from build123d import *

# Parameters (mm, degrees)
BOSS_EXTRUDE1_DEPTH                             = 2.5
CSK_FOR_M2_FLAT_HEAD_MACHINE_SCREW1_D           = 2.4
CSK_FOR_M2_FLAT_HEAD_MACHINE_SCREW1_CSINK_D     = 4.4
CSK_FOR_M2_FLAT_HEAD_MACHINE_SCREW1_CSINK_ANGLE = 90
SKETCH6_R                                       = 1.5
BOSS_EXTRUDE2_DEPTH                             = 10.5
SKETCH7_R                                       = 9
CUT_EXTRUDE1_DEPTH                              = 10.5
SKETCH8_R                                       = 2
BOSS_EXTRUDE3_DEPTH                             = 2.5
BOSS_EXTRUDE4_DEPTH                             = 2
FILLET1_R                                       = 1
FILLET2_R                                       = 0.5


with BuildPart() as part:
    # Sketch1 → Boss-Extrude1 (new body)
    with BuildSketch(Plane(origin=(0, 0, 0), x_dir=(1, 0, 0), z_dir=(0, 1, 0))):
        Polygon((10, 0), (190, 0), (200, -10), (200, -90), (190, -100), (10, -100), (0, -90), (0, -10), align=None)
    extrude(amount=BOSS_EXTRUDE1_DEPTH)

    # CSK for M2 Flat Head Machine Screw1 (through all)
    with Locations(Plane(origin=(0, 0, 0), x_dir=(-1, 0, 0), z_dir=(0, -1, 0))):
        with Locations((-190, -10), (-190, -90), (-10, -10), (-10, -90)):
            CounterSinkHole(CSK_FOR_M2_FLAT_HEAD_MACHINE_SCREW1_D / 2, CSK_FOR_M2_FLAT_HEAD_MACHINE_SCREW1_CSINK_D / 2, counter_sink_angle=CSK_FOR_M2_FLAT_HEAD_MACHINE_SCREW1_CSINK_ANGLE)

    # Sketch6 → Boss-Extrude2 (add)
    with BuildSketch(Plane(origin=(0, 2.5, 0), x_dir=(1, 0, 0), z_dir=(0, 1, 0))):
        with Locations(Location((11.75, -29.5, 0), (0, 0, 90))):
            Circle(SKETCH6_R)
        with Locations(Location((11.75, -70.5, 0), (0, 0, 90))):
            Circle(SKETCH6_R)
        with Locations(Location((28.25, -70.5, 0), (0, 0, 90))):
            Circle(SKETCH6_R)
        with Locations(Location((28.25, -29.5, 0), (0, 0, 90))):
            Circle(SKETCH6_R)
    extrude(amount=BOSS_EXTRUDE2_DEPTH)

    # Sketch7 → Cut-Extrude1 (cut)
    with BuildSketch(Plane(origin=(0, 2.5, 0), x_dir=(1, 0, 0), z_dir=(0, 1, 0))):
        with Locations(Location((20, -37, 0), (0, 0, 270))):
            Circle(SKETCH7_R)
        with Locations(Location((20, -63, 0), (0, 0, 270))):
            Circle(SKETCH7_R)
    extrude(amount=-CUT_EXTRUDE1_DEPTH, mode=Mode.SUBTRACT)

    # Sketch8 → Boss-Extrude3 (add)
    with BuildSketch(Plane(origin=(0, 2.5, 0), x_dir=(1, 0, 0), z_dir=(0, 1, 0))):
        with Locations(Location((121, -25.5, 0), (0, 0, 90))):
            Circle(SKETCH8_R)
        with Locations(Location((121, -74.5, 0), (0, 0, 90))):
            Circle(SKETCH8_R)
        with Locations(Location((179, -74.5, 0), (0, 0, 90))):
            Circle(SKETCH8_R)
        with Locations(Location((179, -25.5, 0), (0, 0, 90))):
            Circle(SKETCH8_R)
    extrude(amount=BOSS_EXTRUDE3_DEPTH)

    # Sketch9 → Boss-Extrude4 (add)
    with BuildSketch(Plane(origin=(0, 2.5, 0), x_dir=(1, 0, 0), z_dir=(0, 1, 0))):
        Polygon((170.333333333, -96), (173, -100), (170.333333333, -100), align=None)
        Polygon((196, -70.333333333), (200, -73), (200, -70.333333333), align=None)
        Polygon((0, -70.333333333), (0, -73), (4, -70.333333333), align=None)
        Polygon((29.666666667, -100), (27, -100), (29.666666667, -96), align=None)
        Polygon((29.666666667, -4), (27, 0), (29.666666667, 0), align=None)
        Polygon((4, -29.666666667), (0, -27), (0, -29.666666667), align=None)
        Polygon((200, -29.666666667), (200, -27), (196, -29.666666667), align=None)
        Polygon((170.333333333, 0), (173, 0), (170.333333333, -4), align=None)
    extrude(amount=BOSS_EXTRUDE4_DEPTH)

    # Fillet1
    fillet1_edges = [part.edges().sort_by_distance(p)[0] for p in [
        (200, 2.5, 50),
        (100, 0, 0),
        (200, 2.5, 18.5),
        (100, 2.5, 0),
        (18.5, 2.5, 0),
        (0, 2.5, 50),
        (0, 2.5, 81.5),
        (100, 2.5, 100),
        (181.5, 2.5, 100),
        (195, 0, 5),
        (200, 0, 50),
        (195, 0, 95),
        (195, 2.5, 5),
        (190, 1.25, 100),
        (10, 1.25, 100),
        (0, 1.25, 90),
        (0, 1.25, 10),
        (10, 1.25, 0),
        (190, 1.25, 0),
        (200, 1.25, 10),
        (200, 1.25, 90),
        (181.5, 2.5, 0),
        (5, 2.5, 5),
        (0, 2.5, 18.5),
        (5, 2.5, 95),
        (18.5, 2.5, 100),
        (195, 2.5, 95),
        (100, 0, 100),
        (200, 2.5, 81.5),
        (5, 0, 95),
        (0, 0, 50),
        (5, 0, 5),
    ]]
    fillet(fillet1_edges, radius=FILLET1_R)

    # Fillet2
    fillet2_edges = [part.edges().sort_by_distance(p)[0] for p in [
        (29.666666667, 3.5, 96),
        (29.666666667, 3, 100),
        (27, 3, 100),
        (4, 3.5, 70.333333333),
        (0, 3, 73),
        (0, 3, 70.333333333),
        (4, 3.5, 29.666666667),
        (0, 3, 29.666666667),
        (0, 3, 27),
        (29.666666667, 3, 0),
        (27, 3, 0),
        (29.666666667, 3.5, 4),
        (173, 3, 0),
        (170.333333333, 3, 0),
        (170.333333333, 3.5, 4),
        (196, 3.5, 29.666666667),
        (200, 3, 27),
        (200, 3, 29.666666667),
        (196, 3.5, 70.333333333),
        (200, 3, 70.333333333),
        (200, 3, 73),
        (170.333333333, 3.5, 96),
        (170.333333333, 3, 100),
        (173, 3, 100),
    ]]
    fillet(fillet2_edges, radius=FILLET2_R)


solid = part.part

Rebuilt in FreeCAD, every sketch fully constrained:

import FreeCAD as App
import Part
import Sketcher

V = App.Vector


def edges_at(feature, points):
    """Names of the edges that pass closest to the given points."""
    edges = feature.Shape.Edges
    near = lambda p: min(range(len(edges)), key=lambda i: edges[i].distToShape(Part.Vertex(*p))[0])
    return sorted({f"Edge{near(p) + 1}" for p in points})


def add_polygon(sketch, points):
    """Adds a closed chain of lines whose ends are joined by coincident constraints."""
    first, n = sketch.GeometryCount, len(points)
    for a, b in zip(points, points[1:] + points[:1]):
        sketch.addGeometry(Part.LineSegment(App.Vector(*a, 0), App.Vector(*b, 0)), False)
    for i in range(n):
        sketch.addConstraint(Sketcher.Constraint("Coincident", first + i, 2, first + (i + 1) % n, 1))

doc = App.newDocument("Part")
body = doc.addObject("PartDesign::Body", "Body")

# Sketch on XZ plane
sketch1 = body.newObject("Sketcher::SketchObject", "Sketch")
sketch1.AttachmentSupport = (doc.getObject("XZ_Plane"), [""])
sketch1.MapMode = "FlatFace"
add_polygon(sketch1, [(190, 0), (10, 0), (0, 10), (0, 90), (10, 100), (190, 100), (200, 90), (200, 10)])  # lines 0-7
sketch1.addConstraint(Sketcher.Constraint("Horizontal", 0))
sketch1.addConstraint(Sketcher.Constraint("Vertical", 2))
sketch1.addConstraint(Sketcher.Constraint("Horizontal", 4))
sketch1.addConstraint(Sketcher.Constraint("Vertical", 6))
sketch1.addConstraint(Sketcher.Constraint("PointOnObject", 0, 2, -1))
sketch1.addConstraint(Sketcher.Constraint("PointOnObject", 1, 2, -2))
sketch1.addConstraint(Sketcher.Constraint("Perpendicular", 1, 3))
sketch1.addConstraint(Sketcher.Constraint("Perpendicular", 3, 5))
sketch1.addConstraint(Sketcher.Constraint("Perpendicular", 5, 7))
sketch1.addConstraint(Sketcher.Constraint("Horizontal", 2, 2, 5, 2))
sketch1.addConstraint(Sketcher.Constraint("Horizontal", 1, 2, 6, 2))
sketch1.addConstraint(Sketcher.Constraint("Vertical", 0, 2, 3, 2))
sketch1.addConstraint(Sketcher.Constraint("Vertical", 4, 2, 7, 2))
sketch1.addConstraint(Sketcher.Constraint("DistanceX", 0, 2, 0, 1, 180.0))
sketch1.addConstraint(Sketcher.Constraint("DistanceY", 2, 1, 2, 2, 80.0))
sketch1.addConstraint(Sketcher.Constraint("DistanceX", -1, 1, 0, 2, 10.0))
pad1 = body.newObject("PartDesign::Pad", "Pad")
pad1.Profile = sketch1
pad1.Length = 2.5
pad1.Reversed = True

# Sketch on XZ plane
sketch2 = body.newObject("Sketcher::SketchObject", "Sketch001")
sketch2.AttachmentSupport = (doc.getObject("XZ_Plane"), [""])
sketch2.MapMode = "FlatFace"
sketch2.addGeometry(Part.Circle(V(190, 10, 0), V(0, 0, 1), 1.2), False)
sketch2.addGeometry(Part.Circle(V(190, 90, 0), V(0, 0, 1), 1.2), False)
sketch2.addGeometry(Part.Circle(V(10, 10, 0), V(0, 0, 1), 1.2), False)
sketch2.addGeometry(Part.Circle(V(10, 90, 0), V(0, 0, 1), 1.2), False)
sketch2.addConstraint(Sketcher.Constraint("Equal", 0, 1))
sketch2.addConstraint(Sketcher.Constraint("Equal", 1, 2))
sketch2.addConstraint(Sketcher.Constraint("Equal", 2, 3))
sketch2.addConstraint(Sketcher.Constraint("Horizontal", 0, 3, 2, 3))
sketch2.addConstraint(Sketcher.Constraint("Horizontal", 1, 3, 3, 3))
sketch2.addConstraint(Sketcher.Constraint("Vertical", 0, 3, 1, 3))
sketch2.addConstraint(Sketcher.Constraint("Vertical", 2, 3, 3, 3))
sketch2.addConstraint(Sketcher.Constraint("Diameter", 0, 2.4))
sketch2.addConstraint(Sketcher.Constraint("DistanceX", -1, 1, 0, 3, 190.0))
sketch2.addConstraint(Sketcher.Constraint("DistanceY", -1, 1, 0, 3, 10.0))
sketch2.addConstraint(Sketcher.Constraint("DistanceY", -1, 1, 1, 3, 90.0))
sketch2.addConstraint(Sketcher.Constraint("DistanceX", -1, 1, 2, 3, 10.0))
doc.recompute()
hole = body.newObject("PartDesign::Hole", "Hole")
hole.Profile = sketch2
hole.ThreadType = "None"
hole.Diameter = 2.4
hole.DepthType = "ThroughAll"
hole.HoleCutType = "Countersink"
hole.HoleCutDiameter = 4.4
hole.HoleCutCountersinkAngle = 90

# Sketch on XZ plane
sketch3 = body.newObject("Sketcher::SketchObject", "Sketch002")
sketch3.AttachmentSupport = (doc.getObject("XZ_Plane"), [""])
sketch3.MapMode = "FlatFace"
sketch3.AttachmentOffset = App.Placement(V(0, 0, -2.5), App.Rotation())
sketch3.addGeometry(Part.Circle(V(11.75, 29.5, 0), V(0, 0, 1), 1.5), False)
sketch3.addGeometry(Part.Circle(V(11.75, 70.5, 0), V(0, 0, 1), 1.5), False)
sketch3.addGeometry(Part.Circle(V(28.25, 70.5, 0), V(0, 0, 1), 1.5), False)
sketch3.addGeometry(Part.Circle(V(28.25, 29.5, 0), V(0, 0, 1), 1.5), False)
sketch3.addConstraint(Sketcher.Constraint("Equal", 0, 1))
sketch3.addConstraint(Sketcher.Constraint("Equal", 1, 2))
sketch3.addConstraint(Sketcher.Constraint("Equal", 2, 3))
sketch3.addConstraint(Sketcher.Constraint("Horizontal", 1, 3, 2, 3))
sketch3.addConstraint(Sketcher.Constraint("Horizontal", 0, 3, 3, 3))
sketch3.addConstraint(Sketcher.Constraint("Vertical", 0, 3, 1, 3))
sketch3.addConstraint(Sketcher.Constraint("Vertical", 2, 3, 3, 3))
sketch3.addConstraint(Sketcher.Constraint("Diameter", 0, 3.0))
sketch3.addConstraint(Sketcher.Constraint("DistanceY", 0, 3, 1, 3, 41.0))
sketch3.addConstraint(Sketcher.Constraint("DistanceY", -1, 1, 0, 3, 29.5))
sketch3.addConstraint(Sketcher.Constraint("DistanceX", 1, 3, 2, 3, 16.5))
sketch3.addConstraint(Sketcher.Constraint("DistanceX", -1, 1, 0, 3, 11.75))
pad2 = body.newObject("PartDesign::Pad", "Pad001")
pad2.Profile = sketch3
pad2.Length = 10.5
pad2.Reversed = True

# Sketch on XZ plane
sketch4 = body.newObject("Sketcher::SketchObject", "Sketch003")
sketch4.AttachmentSupport = (doc.getObject("XZ_Plane"), [""])
sketch4.MapMode = "FlatFace"
sketch4.AttachmentOffset = App.Placement(V(0, 0, -2.5), App.Rotation())
sketch4.addGeometry(Part.Circle(V(20, 37, 0), V(0, 0, 1), 9), False)
sketch4.addGeometry(Part.Circle(V(20, 63, 0), V(0, 0, 1), 9), False)
sketch4.addConstraint(Sketcher.Constraint("Equal", 0, 1))
sketch4.addConstraint(Sketcher.Constraint("Vertical", 0, 3, 1, 3))
sketch4.addConstraint(Sketcher.Constraint("Diameter", 0, 18.0))
sketch4.addConstraint(Sketcher.Constraint("DistanceX", -1, 1, 0, 3, 20.0))
sketch4.addConstraint(Sketcher.Constraint("DistanceY", -1, 1, 0, 3, 37.0))
sketch4.addConstraint(Sketcher.Constraint("DistanceY", -1, 1, 1, 3, 63.0))
pocket1 = body.newObject("PartDesign::Pocket", "Pocket")
pocket1.Profile = sketch4
pocket1.Length = 10.5
pocket1.Reversed = True

# Sketch on XZ plane
sketch5 = body.newObject("Sketcher::SketchObject", "Sketch004")
sketch5.AttachmentSupport = (doc.getObject("XZ_Plane"), [""])
sketch5.MapMode = "FlatFace"
sketch5.AttachmentOffset = App.Placement(V(0, 0, -2.5), App.Rotation())
sketch5.addGeometry(Part.Circle(V(121, 25.5, 0), V(0, 0, 1), 2), False)
sketch5.addGeometry(Part.Circle(V(121, 74.5, 0), V(0, 0, 1), 2), False)
sketch5.addGeometry(Part.Circle(V(179, 74.5, 0), V(0, 0, 1), 2), False)
sketch5.addGeometry(Part.Circle(V(179, 25.5, 0), V(0, 0, 1), 2), False)
sketch5.addConstraint(Sketcher.Constraint("Equal", 0, 1))
sketch5.addConstraint(Sketcher.Constraint("Equal", 1, 2))
sketch5.addConstraint(Sketcher.Constraint("Equal", 2, 3))
sketch5.addConstraint(Sketcher.Constraint("Horizontal", 1, 3, 2, 3))
sketch5.addConstraint(Sketcher.Constraint("Horizontal", 0, 3, 3, 3))
sketch5.addConstraint(Sketcher.Constraint("Vertical", 0, 3, 1, 3))
sketch5.addConstraint(Sketcher.Constraint("Vertical", 2, 3, 3, 3))
sketch5.addConstraint(Sketcher.Constraint("Diameter", 0, 4.0))
sketch5.addConstraint(Sketcher.Constraint("DistanceX", -1, 1, 0, 3, 121.0))
sketch5.addConstraint(Sketcher.Constraint("DistanceX", -1, 1, 2, 3, 179.0))
sketch5.addConstraint(Sketcher.Constraint("DistanceY", 0, 3, 1, 3, 49.0))
sketch5.addConstraint(Sketcher.Constraint("DistanceY", -1, 1, 0, 3, 25.5))
pad3 = body.newObject("PartDesign::Pad", "Pad002")
pad3.Profile = sketch5
pad3.Length = 2.5
pad3.Reversed = True

# Sketch on XZ plane
sketch6 = body.newObject("Sketcher::SketchObject", "Sketch005")
sketch6.AttachmentSupport = (doc.getObject("XZ_Plane"), [""])
sketch6.MapMode = "FlatFace"
sketch6.AttachmentOffset = App.Placement(V(0, 0, -2.5), App.Rotation())
add_polygon(sketch6, [(173, 100), (170.333333, 96), (170.333333, 100)])  # lines 0-2
add_polygon(sketch6, [(196, 70.333333), (200, 73), (200, 70.333333)])  # lines 3-5
add_polygon(sketch6, [(0, 70.333333), (0, 73), (4, 70.333333)])  # lines 6-8
add_polygon(sketch6, [(27, 100), (29.666667, 100), (29.666667, 96)])  # lines 9-11
add_polygon(sketch6, [(27, 0), (29.666667, 4), (29.666667, 0)])  # lines 12-14
add_polygon(sketch6, [(4, 29.666667), (0, 27), (0, 29.666667)])  # lines 15-17
add_polygon(sketch6, [(200, 29.666667), (200, 27), (196, 29.666667)])  # lines 18-20
add_polygon(sketch6, [(173, 0), (170.333333, 0), (170.333333, 4)])  # lines 21-23
sketch6.addConstraint(Sketcher.Constraint("Vertical", 1))
sketch6.addConstraint(Sketcher.Constraint("Horizontal", 2))
sketch6.addConstraint(Sketcher.Constraint("Vertical", 4))
sketch6.addConstraint(Sketcher.Constraint("Horizontal", 5))
sketch6.addConstraint(Sketcher.Constraint("Vertical", 6))
sketch6.addConstraint(Sketcher.Constraint("Horizontal", 8))
sketch6.addConstraint(Sketcher.Constraint("Horizontal", 9))
sketch6.addConstraint(Sketcher.Constraint("Vertical", 10))
sketch6.addConstraint(Sketcher.Constraint("Vertical", 13))
sketch6.addConstraint(Sketcher.Constraint("Horizontal", 14))
sketch6.addConstraint(Sketcher.Constraint("Vertical", 16))
sketch6.addConstraint(Sketcher.Constraint("Horizontal", 17))
sketch6.addConstraint(Sketcher.Constraint("Vertical", 18))
sketch6.addConstraint(Sketcher.Constraint("Horizontal", 20))
sketch6.addConstraint(Sketcher.Constraint("Horizontal", 21))
sketch6.addConstraint(Sketcher.Constraint("Vertical", 22))
sketch6.addConstraint(Sketcher.Constraint("PointOnObject", 6, 2, -2))
sketch6.addConstraint(Sketcher.Constraint("PointOnObject", 13, 2, -1))
sketch6.addConstraint(Sketcher.Constraint("PointOnObject", 15, 2, -2))
sketch6.addConstraint(Sketcher.Constraint("PointOnObject", 21, 2, -1))
sketch6.addConstraint(Sketcher.Constraint("Perpendicular", 0, 7))
sketch6.addConstraint(Sketcher.Constraint("Perpendicular", 3, 11))
sketch6.addConstraint(Sketcher.Constraint("Perpendicular", 7, 12))
sketch6.addConstraint(Sketcher.Constraint("Perpendicular", 11, 15))
sketch6.addConstraint(Sketcher.Constraint("Perpendicular", 12, 19))
sketch6.addConstraint(Sketcher.Constraint("Perpendicular", 15, 23))
sketch6.addConstraint(Sketcher.Constraint("Horizontal", 3, 2, 6, 2))
sketch6.addConstraint(Sketcher.Constraint("Horizontal", 5, 2, 7, 2))
sketch6.addConstraint(Sketcher.Constraint("Horizontal", 2, 2, 9, 2))
sketch6.addConstraint(Sketcher.Constraint("Horizontal", 0, 2, 10, 2))
sketch6.addConstraint(Sketcher.Constraint("Horizontal", 15, 2, 18, 2))
sketch6.addConstraint(Sketcher.Constraint("Horizontal", 17, 2, 19, 2))
sketch6.addConstraint(Sketcher.Constraint("Horizontal", 12, 2, 22, 2))
sketch6.addConstraint(Sketcher.Constraint("Vertical", 10, 2, 12, 2))
sketch6.addConstraint(Sketcher.Constraint("Vertical", 11, 2, 14, 2))
sketch6.addConstraint(Sketcher.Constraint("Vertical", 7, 2, 17, 2))
sketch6.addConstraint(Sketcher.Constraint("Vertical", 4, 2, 18, 2))
sketch6.addConstraint(Sketcher.Constraint("Vertical", 5, 2, 19, 2))
sketch6.addConstraint(Sketcher.Constraint("Vertical", 1, 2, 21, 2))
sketch6.addConstraint(Sketcher.Constraint("Equal", 20, 1))
sketch6.addConstraint(Sketcher.Constraint("DistanceX", 5, 2, 5, 1, 4.0))
sketch6.addConstraint(Sketcher.Constraint("DistanceY", -1, 1, 0, 2, 96.0))
sketch6.addConstraint(Sketcher.Constraint("DistanceX", -1, 1, 2, 2, 173.0))
sketch6.addConstraint(Sketcher.Constraint("DistanceX", -1, 1, 3, 2, 200.0))
sketch6.addConstraint(Sketcher.Constraint("DistanceY", -1, 1, 3, 2, 73.0))
sketch6.addConstraint(Sketcher.Constraint("DistanceX", -1, 1, 11, 2, 27.0))
sketch6.addConstraint(Sketcher.Constraint("DistanceY", -1, 1, 15, 2, 27.0))
sketch6.addConstraint(Sketcher.Constraint("Distance", 0, 4.807402))
pad4 = body.newObject("PartDesign::Pad", "Pad003")
pad4.Profile = sketch6
pad4.Length = 2
pad4.Reversed = True
doc.recompute()

fillet = body.newObject("PartDesign::Fillet", "Fillet")
fillet.Base = (pad4, edges_at(pad4, [
    (200, 2.5, 50),
    (100, 0, 0),
    (200, 2.5, 18.5),
    (100, 2.5, 0),
    (18.5, 2.5, 0),
    (0, 2.5, 50),
    (0, 2.5, 81.5),
    (100, 2.5, 100),
    (181.5, 2.5, 100),
    (195, 0, 5),
    (200, 0, 50),
    (195, 0, 95),
    (195, 2.5, 5),
    (190, 1.25, 100),
    (10, 1.25, 100),
    (0, 1.25, 90),
    (0, 1.25, 10),
    (10, 1.25, 0),
    (190, 1.25, 0),
    (200, 1.25, 10),
    (200, 1.25, 90),
    (181.5, 2.5, 0),
    (5, 2.5, 5),
    (0, 2.5, 18.5),
    (5, 2.5, 95),
    (18.5, 2.5, 100),
    (195, 2.5, 95),
    (100, 0, 100),
    (200, 2.5, 81.5),
    (5, 0, 95),
    (0, 0, 50),
    (5, 0, 5),
]))
fillet.Radius = 1
doc.recompute()

fillet2 = body.newObject("PartDesign::Fillet", "Fillet001")
fillet2.Base = (fillet, edges_at(fillet, [
    (29.667, 3.5, 96),
    (29.667, 3, 100),
    (27, 3, 100),
    (4, 3.5, 70.333),
    (0, 3, 73),
    (0, 3, 70.333),
    (4, 3.5, 29.667),
    (0, 3, 29.667),
    (0, 3, 27),
    (29.667, 3, 0),
    (27, 3, 0),
    (29.667, 3.5, 4),
    (173, 3, 0),
    (170.333, 3, 0),
    (170.333, 3.5, 4),
    (196, 3.5, 29.667),
    (200, 3, 27),
    (200, 3, 29.667),
    (196, 3.5, 70.333),
    (200, 3, 70.333),
    (200, 3, 73),
    (170.333, 3.5, 96),
    (170.333, 3, 100),
    (173, 3, 100),
]))
fillet2.Radius = 0.5

doc.recompute()
